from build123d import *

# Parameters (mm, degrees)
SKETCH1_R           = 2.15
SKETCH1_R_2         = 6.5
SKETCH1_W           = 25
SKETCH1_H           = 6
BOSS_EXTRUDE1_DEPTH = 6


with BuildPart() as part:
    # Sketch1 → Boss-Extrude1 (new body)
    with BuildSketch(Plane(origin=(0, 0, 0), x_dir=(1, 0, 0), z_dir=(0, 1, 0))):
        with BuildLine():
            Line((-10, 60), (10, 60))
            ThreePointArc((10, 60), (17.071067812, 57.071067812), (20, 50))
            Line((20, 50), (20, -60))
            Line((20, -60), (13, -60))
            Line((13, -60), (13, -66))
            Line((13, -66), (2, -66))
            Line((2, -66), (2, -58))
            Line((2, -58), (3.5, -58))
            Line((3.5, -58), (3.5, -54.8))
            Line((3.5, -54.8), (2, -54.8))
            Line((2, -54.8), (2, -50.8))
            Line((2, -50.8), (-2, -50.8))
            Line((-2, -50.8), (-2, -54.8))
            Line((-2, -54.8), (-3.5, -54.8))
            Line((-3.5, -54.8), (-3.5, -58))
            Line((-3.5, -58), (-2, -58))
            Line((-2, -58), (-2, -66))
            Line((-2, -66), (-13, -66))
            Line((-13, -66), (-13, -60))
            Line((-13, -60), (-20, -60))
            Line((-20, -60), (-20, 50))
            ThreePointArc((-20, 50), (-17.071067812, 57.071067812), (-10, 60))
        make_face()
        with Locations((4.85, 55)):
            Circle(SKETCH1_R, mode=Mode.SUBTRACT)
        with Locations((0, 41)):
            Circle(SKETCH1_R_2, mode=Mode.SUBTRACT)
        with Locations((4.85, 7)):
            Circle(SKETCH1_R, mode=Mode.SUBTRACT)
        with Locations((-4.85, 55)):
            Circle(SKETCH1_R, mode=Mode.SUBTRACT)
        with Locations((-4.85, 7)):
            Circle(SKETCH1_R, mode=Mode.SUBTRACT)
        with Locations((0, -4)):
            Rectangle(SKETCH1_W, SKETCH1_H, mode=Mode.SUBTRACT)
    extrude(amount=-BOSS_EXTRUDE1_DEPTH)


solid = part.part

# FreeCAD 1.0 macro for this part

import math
import FreeCAD as App
import Part
import Sketcher


def add_polygon(sketch, points):
    """Adds a closed chain of lines whose ends are joined by coincident constraints."""
    first, n = sketch.GeometryCount, len(points)
    for a, b in zip(points, points[1:] + points[:1]):
        sketch.addGeometry(Part.LineSegment(App.Vector(*a, 0), App.Vector(*b, 0)), False)
    for i in range(n):
        sketch.addConstraint(Sketcher.Constraint("Coincident", first + i, 2, first + (i + 1) % n, 1))

doc = App.newDocument("Part")
body = doc.addObject("PartDesign::Body", "Body")

sketch1 = body.newObject("Sketcher::SketchObject", "Sketch")
sketch1.AttachmentSupport = (doc.getObject("XZ_Plane"), [""])
sketch1.MapMode = "FlatFace"
sketch1.addGeometry(Part.LineSegment(App.Vector(10, -60, 0), App.Vector(-10, -60, 0)), False)
sketch1.addGeometry(Part.ArcOfCircle(Part.Circle(App.Vector(-10, -50, 0), App.Vector(0, 0, 1), 10), math.radians(180), math.radians(270)), False)
sketch1.addGeometry(Part.LineSegment(App.Vector(-20, -50, 0), App.Vector(-20, 60, 0)), False)
sketch1.addGeometry(Part.LineSegment(App.Vector(-20, 60, 0), App.Vector(-13, 60, 0)), False)
sketch1.addGeometry(Part.LineSegment(App.Vector(-13, 60, 0), App.Vector(-13, 66, 0)), False)
sketch1.addGeometry(Part.LineSegment(App.Vector(-13, 66, 0), App.Vector(-2, 66, 0)), False)
sketch1.addGeometry(Part.LineSegment(App.Vector(-2, 66, 0), App.Vector(-2, 58, 0)), False)
sketch1.addGeometry(Part.LineSegment(App.Vector(-2, 58, 0), App.Vector(-3.5, 58, 0)), False)
sketch1.addGeometry(Part.LineSegment(App.Vector(-3.5, 58, 0), App.Vector(-3.5, 54.8, 0)), False)
sketch1.addGeometry(Part.LineSegment(App.Vector(-3.5, 54.8, 0), App.Vector(-2, 54.8, 0)), False)
sketch1.addGeometry(Part.LineSegment(App.Vector(-2, 54.8, 0), App.Vector(-2, 50.8, 0)), False)
sketch1.addGeometry(Part.LineSegment(App.Vector(-2, 50.8, 0), App.Vector(2, 50.8, 0)), False)
sketch1.addGeometry(Part.LineSegment(App.Vector(2, 50.8, 0), App.Vector(2, 54.8, 0)), False)
sketch1.addGeometry(Part.LineSegment(App.Vector(2, 54.8, 0), App.Vector(3.5, 54.8, 0)), False)
sketch1.addGeometry(Part.LineSegment(App.Vector(3.5, 54.8, 0), App.Vector(3.5, 58, 0)), False)
sketch1.addGeometry(Part.LineSegment(App.Vector(3.5, 58, 0), App.Vector(2, 58, 0)), False)
sketch1.addGeometry(Part.LineSegment(App.Vector(2, 58, 0), App.Vector(2, 66, 0)), False)
sketch1.addGeometry(Part.LineSegment(App.Vector(2, 66, 0), App.Vector(13, 66, 0)), False)
sketch1.addGeometry(Part.LineSegment(App.Vector(13, 66, 0), App.Vector(13, 60, 0)), False)
sketch1.addGeometry(Part.LineSegment(App.Vector(13, 60, 0), App.Vector(20, 60, 0)), False)
sketch1.addGeometry(Part.LineSegment(App.Vector(20, 60, 0), App.Vector(20, -50, 0)), False)
sketch1.addGeometry(Part.ArcOfCircle(Part.Circle(App.Vector(10, -50, 0), App.Vector(0, 0, 1), 10), math.radians(-90), math.radians(0)), False)
sketch1.addGeometry(Part.Circle(App.Vector(4.8, -7, 0), App.Vector(0, 0, 1), 2.1), False)
add_polygon(sketch1, [(-12.5, 7), (-12.5, 1), (12.5, 1), (12.5, 7)])
sketch1.addGeometry(Part.Circle(App.Vector(-4.8, -7, 0), App.Vector(0, 0, 1), 2.1), False)
sketch1.addGeometry(Part.Circle(App.Vector(4.8, -55, 0), App.Vector(0, 0, 1), 2.1), False)
sketch1.addGeometry(Part.Circle(App.Vector(0, -41, 0), App.Vector(0, 0, 1), 6.5), False)
sketch1.addGeometry(Part.Circle(App.Vector(-4.8, -55, 0), App.Vector(0, 0, 1), 2.1), False)
sketch1.addConstraint([
    Sketcher.Constraint("Tangent", 0, 2, 1, 2),
    Sketcher.Constraint("Tangent", 1, 1, 2, 1),
    Sketcher.Constraint("Coincident", 2, 2, 3, 1),
    Sketcher.Constraint("Coincident", 3, 2, 4, 1),
    Sketcher.Constraint("Coincident", 4, 2, 5, 1),
    Sketcher.Constraint("Coincident", 5, 2, 6, 1),
    Sketcher.Constraint("Coincident", 6, 2, 7, 1),
    Sketcher.Constraint("Coincident", 7, 2, 8, 1),
    Sketcher.Constraint("Coincident", 8, 2, 9, 1),
    Sketcher.Constraint("Coincident", 9, 2, 10, 1),
    Sketcher.Constraint("Coincident", 10, 2, 11, 1),
    Sketcher.Constraint("Coincident", 11, 2, 12, 1),
    Sketcher.Constraint("Coincident", 12, 2, 13, 1),
    Sketcher.Constraint("Coincident", 13, 2, 14, 1),
    Sketcher.Constraint("Coincident", 14, 2, 15, 1),
    Sketcher.Constraint("Coincident", 15, 2, 16, 1),
    Sketcher.Constraint("Coincident", 16, 2, 17, 1),
    Sketcher.Constraint("Coincident", 17, 2, 18, 1),
    Sketcher.Constraint("Coincident", 18, 2, 19, 1),
    Sketcher.Constraint("Coincident", 19, 2, 20, 1),
    Sketcher.Constraint("Tangent", 20, 2, 21, 2),
    Sketcher.Constraint("Tangent", 21, 1, 0, 1),
    Sketcher.Constraint("Horizontal", 0),
    Sketcher.Constraint("Vertical", 2),
    Sketcher.Constraint("Horizontal", 3),
    Sketcher.Constraint("Vertical", 4),
    Sketcher.Constraint("Horizontal", 5),
    Sketcher.Constraint("Vertical", 6),
    Sketcher.Constraint("Horizontal", 7),
    Sketcher.Constraint("Vertical", 8),
    Sketcher.Constraint("Horizontal", 9),
    Sketcher.Constraint("Vertical", 10),
    Sketcher.Constraint("Horizontal", 11),
    Sketcher.Constraint("Vertical", 12),
    Sketcher.Constraint("Horizontal", 13),
    Sketcher.Constraint("Vertical", 14),
    Sketcher.Constraint("Horizontal", 15),
    Sketcher.Constraint("Vertical", 16),
    Sketcher.Constraint("Horizontal", 17),
    Sketcher.Constraint("Vertical", 18),
    Sketcher.Constraint("Horizontal", 19),
    Sketcher.Constraint("Vertical", 20),
    Sketcher.Constraint("Vertical", 23),
    Sketcher.Constraint("Horizontal", 24),
    Sketcher.Constraint("Vertical", 25),
    Sketcher.Constraint("Horizontal", 26),
    Sketcher.Constraint("Equal", 1, 21),
    Sketcher.Constraint("Equal", 22, 27),
    Sketcher.Constraint("Equal", 27, 28),
    Sketcher.Constraint("Equal", 28, 30),
    Sketcher.Constraint("Symmetric", 22, 3, 27, 3, -2),
    Sketcher.Constraint("Symmetric", 28, 3, 30, 3, -2),
    Sketcher.Constraint("Symmetric", 9, 2, 12, 2, -2),
    Sketcher.Constraint("Symmetric", 7, 2, 14, 2, -2),
    Sketcher.Constraint("Symmetric", 5, 2, 16, 2, -2),
    Sketcher.Constraint("Symmetric", 3, 2, 18, 2, -2),
    Sketcher.Constraint("PointOnObject", 29, 3, -2),
    Sketcher.Constraint("Vertical", 22, 3, 28, 3),
    Sketcher.Constraint("Vertical", 6, 2, 9, 2),
    Sketcher.Constraint("Equal", 3, 19),
    Sketcher.Constraint("Equal", 11, 10),
    Sketcher.Constraint("Equal", 18, 23),
    Sketcher.Constraint("Diameter", 29, 13.0),
    Sketcher.Constraint("Radius", 1, 10.0),
    Sketcher.Constraint("Diameter", 22, 4.3),
    Sketcher.Constraint("DistanceX", 0, 2, 0, 1, 20.0),
    Sketcher.Constraint("DistanceX", 3, 1, 3, 2, 7.0),
    Sketcher.Constraint("DistanceX", 5, 1, 5, 2, 11.0),
    Sketcher.Constraint("DistanceX", 24, 1, 24, 2, 25.0),
    Sketcher.Constraint("DistanceY", 2, 1, 2, 2, 110.0),
    Sketcher.Constraint("DistanceY", 4, 1, 4, 2, 6.0),
    Sketcher.Constraint("DistanceY", 6, 2, 6, 1, 8.0),
    Sketcher.Constraint("DistanceX", 7, 2, 7, 1, 1.5),
    Sketcher.Constraint("DistanceY", 8, 2, 8, 1, 3.2),
    Sketcher.Constraint("DistanceY", 1, 3, -1, 1, 50.0),
    Sketcher.Constraint("DistanceY", 22, 3, -1, 1, 7.0),
    Sketcher.Constraint("DistanceY", 28, 3, -1, 1, 55.0),
    Sketcher.Constraint("DistanceY", 29, 3, -1, 1, 41.0),
    Sketcher.Constraint("DistanceY", -1, 1, 23, 2, 1.0),
    Sketcher.Constraint("DistanceX", 23, 2, -1, 1, 12.5),
    Sketcher.Constraint("DistanceX", 27, 3, 22, 3, 9.7),
])
pad1 = body.newObject("PartDesign::Pad", "Pad")
pad1.Profile = sketch1
pad1.Length = 6

doc.recompute()
